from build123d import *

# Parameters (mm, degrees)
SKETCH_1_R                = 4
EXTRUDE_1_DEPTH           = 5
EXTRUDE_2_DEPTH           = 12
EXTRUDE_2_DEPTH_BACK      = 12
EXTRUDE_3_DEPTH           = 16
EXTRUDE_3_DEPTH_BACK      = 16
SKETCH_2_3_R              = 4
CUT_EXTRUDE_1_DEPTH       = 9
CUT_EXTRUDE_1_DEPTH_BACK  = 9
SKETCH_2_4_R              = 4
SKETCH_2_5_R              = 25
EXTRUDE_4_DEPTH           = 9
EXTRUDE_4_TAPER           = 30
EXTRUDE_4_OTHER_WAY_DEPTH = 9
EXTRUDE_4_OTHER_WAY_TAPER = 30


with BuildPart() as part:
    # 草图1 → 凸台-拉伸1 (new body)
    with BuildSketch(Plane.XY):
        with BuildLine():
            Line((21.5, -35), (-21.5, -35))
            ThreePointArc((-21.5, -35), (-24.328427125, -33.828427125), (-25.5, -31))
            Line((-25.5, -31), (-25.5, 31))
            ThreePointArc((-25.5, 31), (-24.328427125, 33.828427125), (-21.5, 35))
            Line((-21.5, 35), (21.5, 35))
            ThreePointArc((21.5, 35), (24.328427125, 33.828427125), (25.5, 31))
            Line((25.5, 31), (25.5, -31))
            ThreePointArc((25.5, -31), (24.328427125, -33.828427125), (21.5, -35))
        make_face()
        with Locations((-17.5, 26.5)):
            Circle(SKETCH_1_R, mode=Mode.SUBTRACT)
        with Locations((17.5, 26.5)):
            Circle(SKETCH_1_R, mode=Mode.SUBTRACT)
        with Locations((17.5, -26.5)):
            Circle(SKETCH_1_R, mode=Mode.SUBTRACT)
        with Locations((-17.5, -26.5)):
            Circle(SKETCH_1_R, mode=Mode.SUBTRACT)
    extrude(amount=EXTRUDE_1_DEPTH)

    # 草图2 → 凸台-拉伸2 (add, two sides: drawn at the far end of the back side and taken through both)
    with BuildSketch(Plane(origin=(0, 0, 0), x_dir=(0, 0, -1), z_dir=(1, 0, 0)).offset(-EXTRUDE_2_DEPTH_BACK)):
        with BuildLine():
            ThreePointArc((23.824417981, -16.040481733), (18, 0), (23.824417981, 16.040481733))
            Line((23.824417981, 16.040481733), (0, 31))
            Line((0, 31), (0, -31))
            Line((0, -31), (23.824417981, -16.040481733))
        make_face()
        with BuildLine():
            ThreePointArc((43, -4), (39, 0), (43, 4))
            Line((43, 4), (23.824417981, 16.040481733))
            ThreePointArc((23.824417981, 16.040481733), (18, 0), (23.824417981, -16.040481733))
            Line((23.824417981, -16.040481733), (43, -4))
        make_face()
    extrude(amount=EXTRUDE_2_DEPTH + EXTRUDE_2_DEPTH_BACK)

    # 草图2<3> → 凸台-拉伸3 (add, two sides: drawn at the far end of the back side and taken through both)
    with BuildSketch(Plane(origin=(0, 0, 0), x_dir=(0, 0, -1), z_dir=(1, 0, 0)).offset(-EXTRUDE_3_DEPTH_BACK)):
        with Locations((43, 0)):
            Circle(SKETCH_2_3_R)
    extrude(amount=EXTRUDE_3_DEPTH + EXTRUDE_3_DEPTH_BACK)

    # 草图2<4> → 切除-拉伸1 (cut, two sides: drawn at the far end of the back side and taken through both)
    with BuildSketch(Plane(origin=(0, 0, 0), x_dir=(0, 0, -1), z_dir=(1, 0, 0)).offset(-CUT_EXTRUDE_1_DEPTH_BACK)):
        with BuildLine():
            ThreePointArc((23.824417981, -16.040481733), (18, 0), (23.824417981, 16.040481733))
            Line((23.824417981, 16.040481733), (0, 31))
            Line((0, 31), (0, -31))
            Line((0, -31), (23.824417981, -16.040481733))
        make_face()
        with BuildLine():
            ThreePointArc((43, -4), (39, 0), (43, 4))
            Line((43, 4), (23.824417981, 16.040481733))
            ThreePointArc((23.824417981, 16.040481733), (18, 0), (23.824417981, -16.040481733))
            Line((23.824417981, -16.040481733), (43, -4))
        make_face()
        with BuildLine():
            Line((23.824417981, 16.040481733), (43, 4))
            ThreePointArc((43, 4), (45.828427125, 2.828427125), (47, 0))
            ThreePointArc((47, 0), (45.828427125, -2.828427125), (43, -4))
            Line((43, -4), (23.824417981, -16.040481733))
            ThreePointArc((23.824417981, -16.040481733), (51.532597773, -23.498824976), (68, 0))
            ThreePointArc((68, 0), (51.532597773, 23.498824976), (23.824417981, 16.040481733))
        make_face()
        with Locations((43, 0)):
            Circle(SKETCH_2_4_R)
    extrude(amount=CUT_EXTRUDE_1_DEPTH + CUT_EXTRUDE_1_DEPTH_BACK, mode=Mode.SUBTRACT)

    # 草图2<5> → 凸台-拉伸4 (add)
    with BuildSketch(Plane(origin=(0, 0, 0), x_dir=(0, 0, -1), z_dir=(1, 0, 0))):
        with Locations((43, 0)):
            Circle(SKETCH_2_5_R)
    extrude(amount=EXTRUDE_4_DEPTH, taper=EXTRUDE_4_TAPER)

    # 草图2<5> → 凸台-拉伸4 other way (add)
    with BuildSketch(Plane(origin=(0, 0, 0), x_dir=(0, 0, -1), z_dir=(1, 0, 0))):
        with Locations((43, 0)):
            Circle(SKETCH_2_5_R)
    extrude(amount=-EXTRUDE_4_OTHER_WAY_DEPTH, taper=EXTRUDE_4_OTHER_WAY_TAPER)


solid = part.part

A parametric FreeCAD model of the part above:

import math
import FreeCAD as App
import Part
import Sketcher
from FreeCAD import Vector
Q = App.Units.Quantity

doc = App.newDocument("Part")
body = doc.addObject("PartDesign::Body", "Body")

# Sketch on XY plane
sketch1 = body.newObject("Sketcher::SketchObject", "Sketch")
sketch1.AttachmentSupport = (doc.getObject("XY_Plane"), [""])
sketch1.MapMode = "FlatFace"
sketch1.addGeometry([
    Part.LineSegment(Vector(-21.5, -35, 0), Vector(21.5, -35, 0)),  # 0
    Part.ArcOfCircle(Part.Circle(Vector(21.5, -31, 0), Vector(0, 0, 1), 4), math.radians(-90), math.radians(0)),  # 1
    Part.LineSegment(Vector(25.5, -31, 0), Vector(25.5, 31, 0)),  # 2
    Part.ArcOfCircle(Part.Circle(Vector(21.5, 31, 0), Vector(0, 0, 1), 4), math.radians(0), math.radians(90)),  # 3
    Part.LineSegment(Vector(21.5, 35, 0), Vector(-21.5, 35, 0)),  # 4
    Part.ArcOfCircle(Part.Circle(Vector(-21.5, 31, 0), Vector(0, 0, 1), 4), math.radians(90), math.radians(180)),  # 5
    Part.LineSegment(Vector(-25.5, 31, 0), Vector(-25.5, -31, 0)),  # 6
    Part.ArcOfCircle(Part.Circle(Vector(-21.5, -31, 0), Vector(0, 0, 1), 4), math.radians(180), math.radians(270)),  # 7
    Part.Circle(Vector(17.5, -26.5, 0), Vector(0, 0, 1), 4),  # 8
    Part.Circle(Vector(-17.5, -26.5, 0), Vector(0, 0, 1), 4),  # 9
    Part.Circle(Vector(17.5, 26.5, 0), Vector(0, 0, 1), 4),  # 10
    Part.Circle(Vector(-17.5, 26.5, 0), Vector(0, 0, 1), 4),  # 11
], False)
sketch1.addConstraint([
    Sketcher.Constraint("Tangent", 0, 2, 1, 1),
    Sketcher.Constraint("Tangent", 1, 2, 2, 1),
    Sketcher.Constraint("Tangent", 2, 2, 3, 1),
    Sketcher.Constraint("Tangent", 3, 2, 4, 1),
    Sketcher.Constraint("Tangent", 4, 2, 5, 1),
    Sketcher.Constraint("Tangent", 5, 2, 6, 1),
    Sketcher.Constraint("Tangent", 6, 2, 7, 1),
    Sketcher.Constraint("Tangent", 7, 2, 0, 1),
    Sketcher.Constraint("Horizontal", 0),
    Sketcher.Constraint("Vertical", 2),
    Sketcher.Constraint("Horizontal", 4),
    Sketcher.Constraint("Vertical", 6),
    Sketcher.Constraint("Equal", 1, 3),
    Sketcher.Constraint("Equal", 3, 5),
    Sketcher.Constraint("Equal", 5, 7),
    Sketcher.Constraint("Equal", 7, 8),
    Sketcher.Constraint("Equal", 8, 9),
    Sketcher.Constraint("Equal", 9, 10),
    Sketcher.Constraint("Equal", 10, 11),
    Sketcher.Constraint("Symmetric", 1, 3, 5, 3, -1, 1),
    Sketcher.Constraint("Symmetric", 9, 3, 10, 3, -1, 1),
    Sketcher.Constraint("Symmetric", 8, 3, 11, 3, -1, 1),
    Sketcher.Constraint("Symmetric", 8, 3, 9, 3, -2),
    Sketcher.Constraint("Diameter", 8, Q("8 mm")),
    Sketcher.Constraint("DistanceX", 0, 1, 0, 2, Q("43 mm")),
    Sketcher.Constraint("DistanceY", 2, 1, 2, 2, Q("62 mm")),
    Sketcher.Constraint("DistanceX", 8, 3, 1, 3, Q("4 mm")),
    Sketcher.Constraint("DistanceY", 8, 3, 10, 3, Q("53 mm")),
])
pad1 = body.newObject("PartDesign::Pad", "Pad")
pad1.Profile = sketch1
pad1.Length = 5

# Sketch on YZ plane
sketch2 = body.newObject("Sketcher::SketchObject", "Sketch001")
sketch2.AttachmentSupport = (doc.getObject("YZ_Plane"), [""])
sketch2.MapMode = "FlatFace"
sketch2.addGeometry([
    Part.LineSegment(Vector(16.040482, -23.824418, 0), Vector(31, 0, 0)),  # 0
    Part.LineSegment(Vector(31, 0, 0), Vector(-31, 0, 0)),  # 1
    Part.LineSegment(Vector(-31, 0, 0), Vector(-16.040482, -23.824418, 0)),  # 2
    Part.LineSegment(Vector(-16.040482, -23.824418, 0), Vector(-4, -43, 0)),  # 3
    Part.ArcOfCircle(Part.Circle(Vector(0, -43, 0), Vector(0, 0, 1), 4), math.radians(0), math.radians(180)),  # 4
    Part.LineSegment(Vector(4, -43, 0), Vector(16.040482, -23.824418, 0)),  # 5
], False)
sketch2.addConstraint([
    Sketcher.Constraint("Coincident", 0, 2, 1, 1),
    Sketcher.Constraint("Coincident", 1, 2, 2, 1),
    Sketcher.Constraint("Coincident", 2, 2, 3, 1),
    Sketcher.Constraint("Coincident", 3, 2, 4, 2),
    Sketcher.Constraint("Coincident", 4, 1, 5, 1),
    Sketcher.Constraint("Coincident", 5, 2, 0, 1),
    Sketcher.Constraint("Horizontal", 1),
    Sketcher.Constraint("Symmetric", 0, 2, 1, 2, -1, 1),
    Sketcher.Constraint("Symmetric", 3, 2, 4, 1, -2),
    Sketcher.Constraint("Symmetric", 2, 2, 5, 2, -2),
    Sketcher.Constraint("Parallel", 2, 3),
    Sketcher.Constraint("Horizontal", 4, 3, 3, 2),
    Sketcher.Constraint("Radius", 4, Q("4 mm")),
    Sketcher.Constraint("DistanceX", 1, 2, 1, 1, Q("62 mm")),
    Sketcher.Constraint("DistanceY", 4, 3, -1, 1, Q("43 mm")),
    Sketcher.Constraint("DistanceX", 2, 2, -1, 1, Q("16.040482 mm")),
])
pad2 = body.newObject("PartDesign::Pad", "Pad001")
pad2.Profile = sketch2
pad2.Type = "TwoLengths"
pad2.Length = 12
pad2.Length2 = 12

# Sketch on YZ plane
sketch3 = body.newObject("Sketcher::SketchObject", "Sketch002")
sketch3.AttachmentSupport = (doc.getObject("YZ_Plane"), [""])
sketch3.MapMode = "FlatFace"
sketch3.addGeometry(Part.Circle(Vector(0, -43, 0), Vector(0, 0, 1), 4), False)
sketch3.addConstraint([
    Sketcher.Constraint("PointOnObject", 0, 3, -2),
    Sketcher.Constraint("Diameter", 0, Q("8 mm")),
    Sketcher.Constraint("DistanceY", 0, 3, -1, 1, Q("43 mm")),
])
pad3 = body.newObject("PartDesign::Pad", "Pad002")
pad3.Profile = sketch3
pad3.Type = "TwoLengths"
pad3.Length = 16
pad3.Length2 = 16

# Sketch on YZ plane
sketch4 = body.newObject("Sketcher::SketchObject", "Sketch003")
sketch4.AttachmentSupport = (doc.getObject("YZ_Plane"), [""])
sketch4.MapMode = "FlatFace"
sketch4.addGeometry([
    Part.LineSegment(Vector(16.040482, -23.824418, 0), Vector(31, 0, 0)),  # 0
    Part.LineSegment(Vector(31, 0, 0), Vector(-31, 0, 0)),  # 1
    Part.LineSegment(Vector(-31, 0, 0), Vector(-16.040482, -23.824418, 0)),  # 2
    Part.ArcOfCircle(Part.Circle(Vector(0, -43, 0), Vector(0, 0, 1), 25), math.radians(129.912671), math.radians(270)),  # 3
    Part.ArcOfCircle(Part.Circle(Vector(0, -43, 0), Vector(0, 0, 1), 25), math.radians(-90), math.radians(50.087329)),  # 4
], False)
sketch4.addConstraint([
    Sketcher.Constraint("Coincident", 0, 2, 1, 1),
    Sketcher.Constraint("Coincident", 1, 2, 2, 1),
    Sketcher.Constraint("Coincident", 2, 2, 3, 1),
    Sketcher.Constraint("Tangent", 3, 2, 4, 1),
    Sketcher.Constraint("Coincident", 4, 2, 0, 1),
    Sketcher.Constraint("Horizontal", 1),
    Sketcher.Constraint("Equal", 3, 4),
    Sketcher.Constraint("Symmetric", 0, 2, 1, 2, -1, 1),
    Sketcher.Constraint("Symmetric", 2, 2, 4, 2, -2),
    Sketcher.Constraint("PointOnObject", 3, 2, -2),
    Sketcher.Constraint("Radius", 3, Q("25 mm")),
    Sketcher.Constraint("DistanceX", 1, 2, 1, 1, Q("62 mm")),
    Sketcher.Constraint("DistanceY", 3, 3, -1, 1, Q("43 mm")),
    Sketcher.Constraint("DistanceX", 2, 2, -1, 1, Q("16.040482 mm")),
])
pocket1 = body.newObject("PartDesign::Pocket", "Pocket")
pocket1.Profile = sketch4
pocket1.Type = "TwoLengths"
pocket1.Length = 9
pocket1.Length2 = 9
pocket1.Reversed = True

# Sketch on YZ plane
sketch5 = body.newObject("Sketcher::SketchObject", "Sketch004")
sketch5.AttachmentSupport = (doc.getObject("YZ_Plane"), [""])
sketch5.MapMode = "FlatFace"
sketch5.addGeometry(Part.Circle(Vector(0, -43, 0), Vector(0, 0, 1), 25), False)
sketch5.addConstraint([
    Sketcher.Constraint("PointOnObject", 0, 3, -2),
    Sketcher.Constraint("Diameter", 0, Q("50 mm")),
    Sketcher.Constraint("DistanceY", 0, 3, -1, 1, Q("43 mm")),
])
pad4 = body.newObject("PartDesign::Pad", "Pad003")
pad4.Profile = sketch5
pad4.Length = 9
pad4.TaperAngle = -30

# Sketch on YZ plane
sketch6 = body.newObject("Sketcher::SketchObject", "Sketch005")
sketch6.AttachmentSupport = (doc.getObject("YZ_Plane"), [""])
sketch6.MapMode = "FlatFace"
sketch6.addGeometry(Part.Circle(Vector(0, -43, 0), Vector(0, 0, 1), 25), False)
sketch6.addConstraint([
    Sketcher.Constraint("PointOnObject", 0, 3, -2),
    Sketcher.Constraint("Diameter", 0, Q("50 mm")),
    Sketcher.Constraint("DistanceY", 0, 3, -1, 1, Q("43 mm")),
])
pad5 = body.newObject("PartDesign::Pad", "Pad004")
pad5.Profile = sketch6
pad5.Length = 9
pad5.Reversed = True
pad5.TaperAngle = -30

doc.recompute()
